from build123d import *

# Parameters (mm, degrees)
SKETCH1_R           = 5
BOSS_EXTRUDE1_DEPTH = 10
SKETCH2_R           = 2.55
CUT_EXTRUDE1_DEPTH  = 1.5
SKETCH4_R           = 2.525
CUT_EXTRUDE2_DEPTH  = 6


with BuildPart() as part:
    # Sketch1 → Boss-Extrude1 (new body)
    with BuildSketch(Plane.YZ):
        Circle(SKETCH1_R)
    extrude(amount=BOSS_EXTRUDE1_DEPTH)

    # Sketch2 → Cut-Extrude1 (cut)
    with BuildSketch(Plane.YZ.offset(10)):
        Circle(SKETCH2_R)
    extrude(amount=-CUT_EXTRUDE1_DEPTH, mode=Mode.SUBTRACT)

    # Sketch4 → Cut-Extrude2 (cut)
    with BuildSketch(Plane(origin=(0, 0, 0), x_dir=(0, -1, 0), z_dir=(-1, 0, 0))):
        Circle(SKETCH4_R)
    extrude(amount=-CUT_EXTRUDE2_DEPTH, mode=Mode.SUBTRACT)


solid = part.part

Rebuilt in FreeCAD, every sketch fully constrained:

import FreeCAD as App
import Part
import Sketcher
from FreeCAD import Vector
Q = App.Units.Quantity

doc = App.newDocument("Part")
body = doc.addObject("PartDesign::Body", "Body")

sketch1 = doc.addObject("Sketcher::SketchObject", "Sketch")
body.addObject(sketch1)
sketch1.AttachmentSupport = (doc.YZ_Plane, [""])
sketch1.MapMode = "FlatFace"
sketch1.addGeometry(Part.Circle(Vector(0, 0, 0), Vector(0, 0, 1), 5), False)
sketch1.addConstraint([
    Sketcher.Constraint("Coincident", 0, 3, -1, 1),
    Sketcher.Constraint("Diameter", 0, Q("10 mm")),
])
pad1 = doc.addObject("PartDesign::Pad", "Pad")
body.addObject(pad1)
pad1.Profile = sketch1
pad1.Length = 10

sketch2 = doc.addObject("Sketcher::SketchObject", "Sketch001")
body.addObject(sketch2)
sketch2.AttachmentSupport = (doc.YZ_Plane, [""])
sketch2.MapMode = "FlatFace"
sketch2.AttachmentOffset = App.Placement(Vector(0, 0, 10), App.Rotation())
sketch2.addGeometry(Part.Circle(Vector(0, 0, 0), Vector(0, 0, 1), 2.5), False)
sketch2.addConstraint([
    Sketcher.Constraint("Coincident", 0, 3, -1, 1),
    Sketcher.Constraint("Diameter", 0, Q("5.1 mm")),
])
pocket1 = doc.addObject("PartDesign::Pocket", "Pocket")
body.addObject(pocket1)
pocket1.Profile = sketch2
pocket1.Length = 1.5

sketch3 = doc.addObject("Sketcher::SketchObject", "Sketch002")
body.addObject(sketch3)
sketch3.AttachmentSupport = (doc.YZ_Plane, [""])
sketch3.MapMode = "FlatFace"
sketch3.addGeometry(Part.Circle(Vector(0, 0, 0), Vector(0, 0, 1), 2.5), False)
sketch3.addConstraint([
    Sketcher.Constraint("Coincident", 0, 3, -1, 1),
    Sketcher.Constraint("Diameter", 0, Q("5.05 mm")),
])
pocket2 = doc.addObject("PartDesign::Pocket", "Pocket001")
body.addObject(pocket2)
pocket2.Profile = sketch3
pocket2.Length = 6
pocket2.Reversed = True

doc.recompute()
